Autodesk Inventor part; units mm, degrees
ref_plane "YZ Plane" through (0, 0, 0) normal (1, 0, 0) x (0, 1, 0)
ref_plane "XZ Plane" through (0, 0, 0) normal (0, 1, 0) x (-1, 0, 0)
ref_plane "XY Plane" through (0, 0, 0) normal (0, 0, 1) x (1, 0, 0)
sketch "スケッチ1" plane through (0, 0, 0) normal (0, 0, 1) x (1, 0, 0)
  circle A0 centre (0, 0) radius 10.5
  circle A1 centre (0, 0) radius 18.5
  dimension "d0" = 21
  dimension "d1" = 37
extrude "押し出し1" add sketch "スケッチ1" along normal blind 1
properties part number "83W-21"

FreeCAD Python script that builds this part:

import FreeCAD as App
import Part
import Sketcher

V = App.Vector
Q = App.Units.Quantity

doc = App.newDocument("Part")
body = doc.addObject("PartDesign::Body", "Body")

sketch1 = body.newObject("Sketcher::SketchObject", "Sketch")
sketch1.AttachmentSupport = (doc.getObject("XY_Plane"), [""])
sketch1.MapMode = "FlatFace"
sketch1.addGeometry(Part.Circle(V(0, 0, 0), V(0, 0, 1), 18.5), False)
sketch1.addGeometry(Part.Circle(V(0, 0, 0), V(0, 0, 1), 10.5), False)
sketch1.addConstraint(Sketcher.Constraint("Coincident", 0, 3, -1, 1))
sketch1.addConstraint(Sketcher.Constraint("Coincident", 1, 3, -1, 1))
sketch1.addConstraint(Sketcher.Constraint("Diameter", 0, Q("37 mm")))
sketch1.addConstraint(Sketcher.Constraint("Diameter", 1, Q("21 mm")))
pad1 = body.newObject("PartDesign::Pad", "Pad")
pad1.Profile = sketch1
pad1.Length = 1

doc.recompute()
